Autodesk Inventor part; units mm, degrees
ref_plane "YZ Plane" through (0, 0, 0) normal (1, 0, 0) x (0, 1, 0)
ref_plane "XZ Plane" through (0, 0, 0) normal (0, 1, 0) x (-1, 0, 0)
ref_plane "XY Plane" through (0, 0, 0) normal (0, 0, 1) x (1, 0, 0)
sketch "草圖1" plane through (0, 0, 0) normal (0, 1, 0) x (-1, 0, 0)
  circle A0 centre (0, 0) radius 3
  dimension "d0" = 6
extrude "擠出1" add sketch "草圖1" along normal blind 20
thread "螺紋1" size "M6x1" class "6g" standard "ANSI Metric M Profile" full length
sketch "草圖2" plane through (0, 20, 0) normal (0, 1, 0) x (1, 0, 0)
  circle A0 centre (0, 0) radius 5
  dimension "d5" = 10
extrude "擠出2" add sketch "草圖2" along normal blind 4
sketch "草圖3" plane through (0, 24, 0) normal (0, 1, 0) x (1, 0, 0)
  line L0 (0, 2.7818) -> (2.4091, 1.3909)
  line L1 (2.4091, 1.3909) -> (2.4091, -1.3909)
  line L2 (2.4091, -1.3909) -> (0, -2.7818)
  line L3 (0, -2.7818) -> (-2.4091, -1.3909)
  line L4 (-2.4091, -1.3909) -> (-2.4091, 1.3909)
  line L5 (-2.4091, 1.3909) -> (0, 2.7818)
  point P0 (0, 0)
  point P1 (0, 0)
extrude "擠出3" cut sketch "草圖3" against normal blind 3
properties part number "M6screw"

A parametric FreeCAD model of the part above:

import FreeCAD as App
import Part
import Sketcher
Q = App.Units.Quantity


def add_polygon(sketch, points):
    """Adds a closed chain of lines whose ends are joined by coincident constraints."""
    first, n = sketch.GeometryCount, len(points)
    for a, b in zip(points, points[1:] + points[:1]):
        sketch.addGeometry(Part.LineSegment(App.Vector(*a, 0), App.Vector(*b, 0)), False)
    for i in range(n):
        sketch.addConstraint(Sketcher.Constraint("Coincident", first + i, 2, first + (i + 1) % n, 1))

doc = App.newDocument("Part")
body = doc.addObject("PartDesign::Body", "Body")

sketch1 = body.newObject("Sketcher::SketchObject", "Sketch")
sketch1.AttachmentSupport = (doc.getObject("XZ_Plane"), [""])
sketch1.MapMode = "FlatFace"
sketch1.addGeometry(Part.Circle(App.Vector(0, 0, 0), App.Vector(0, 0, 1), 3), False)
sketch1.addConstraint([
    Sketcher.Constraint("Coincident", 0, 3, -1, 1),
    Sketcher.Constraint("Diameter", 0, Q("6 mm")),
])
pad1 = body.newObject("PartDesign::Pad", "Pad")
pad1.Profile = sketch1
pad1.Length = 20
pad1.Reversed = True

sketch2 = body.newObject("Sketcher::SketchObject", "Sketch001")
sketch2.AttachmentSupport = (doc.getObject("XZ_Plane"), [""])
sketch2.MapMode = "FlatFace"
sketch2.AttachmentOffset = App.Placement(App.Vector(0, 0, -20), App.Rotation())
sketch2.addGeometry(Part.Circle(App.Vector(0, 0, 0), App.Vector(0, 0, 1), 5), False)
sketch2.addConstraint([
    Sketcher.Constraint("Coincident", 0, 3, -1, 1),
    Sketcher.Constraint("Diameter", 0, Q("10 mm")),
])
pad2 = body.newObject("PartDesign::Pad", "Pad001")
pad2.Profile = sketch2
pad2.Length = 4
pad2.Reversed = True

sketch3 = body.newObject("Sketcher::SketchObject", "Sketch002")
sketch3.AttachmentSupport = (doc.getObject("XZ_Plane"), [""])
sketch3.MapMode = "FlatFace"
sketch3.AttachmentOffset = App.Placement(App.Vector(0, 0, -24), App.Rotation())
add_polygon(sketch3, [(2.4, -1.4), (0, -2.8), (-2.4, -1.4), (-2.4, 1.4), (0, 2.8), (2.4, 1.4)])
sketch3.addConstraint([
    Sketcher.Constraint("Vertical", 2),
    Sketcher.Constraint("Vertical", 5),
    Sketcher.Constraint("Symmetric", 0, 2, 3, 2, -1, 1),
    Sketcher.Constraint("Symmetric", 1, 2, 4, 2, -1, 1),
    Sketcher.Constraint("PointOnObject", 0, 2, -2),
    Sketcher.Constraint("Parallel", 0, 3),
    Sketcher.Constraint("Horizontal", 2, 2, 4, 2),
    Sketcher.Constraint("Angle", 0, Q("-150 deg")),
    Sketcher.Constraint("DistanceY", 2, 1, 2, 2, Q("2.7818 mm")),
    Sketcher.Constraint("DistanceX", 1, 2, -1, 1, Q("2.409 mm")),
])
pocket1 = body.newObject("PartDesign::Pocket", "Pocket")
pocket1.Profile = sketch3
pocket1.Length = 3
pocket1.Reversed = True

doc.recompute()
